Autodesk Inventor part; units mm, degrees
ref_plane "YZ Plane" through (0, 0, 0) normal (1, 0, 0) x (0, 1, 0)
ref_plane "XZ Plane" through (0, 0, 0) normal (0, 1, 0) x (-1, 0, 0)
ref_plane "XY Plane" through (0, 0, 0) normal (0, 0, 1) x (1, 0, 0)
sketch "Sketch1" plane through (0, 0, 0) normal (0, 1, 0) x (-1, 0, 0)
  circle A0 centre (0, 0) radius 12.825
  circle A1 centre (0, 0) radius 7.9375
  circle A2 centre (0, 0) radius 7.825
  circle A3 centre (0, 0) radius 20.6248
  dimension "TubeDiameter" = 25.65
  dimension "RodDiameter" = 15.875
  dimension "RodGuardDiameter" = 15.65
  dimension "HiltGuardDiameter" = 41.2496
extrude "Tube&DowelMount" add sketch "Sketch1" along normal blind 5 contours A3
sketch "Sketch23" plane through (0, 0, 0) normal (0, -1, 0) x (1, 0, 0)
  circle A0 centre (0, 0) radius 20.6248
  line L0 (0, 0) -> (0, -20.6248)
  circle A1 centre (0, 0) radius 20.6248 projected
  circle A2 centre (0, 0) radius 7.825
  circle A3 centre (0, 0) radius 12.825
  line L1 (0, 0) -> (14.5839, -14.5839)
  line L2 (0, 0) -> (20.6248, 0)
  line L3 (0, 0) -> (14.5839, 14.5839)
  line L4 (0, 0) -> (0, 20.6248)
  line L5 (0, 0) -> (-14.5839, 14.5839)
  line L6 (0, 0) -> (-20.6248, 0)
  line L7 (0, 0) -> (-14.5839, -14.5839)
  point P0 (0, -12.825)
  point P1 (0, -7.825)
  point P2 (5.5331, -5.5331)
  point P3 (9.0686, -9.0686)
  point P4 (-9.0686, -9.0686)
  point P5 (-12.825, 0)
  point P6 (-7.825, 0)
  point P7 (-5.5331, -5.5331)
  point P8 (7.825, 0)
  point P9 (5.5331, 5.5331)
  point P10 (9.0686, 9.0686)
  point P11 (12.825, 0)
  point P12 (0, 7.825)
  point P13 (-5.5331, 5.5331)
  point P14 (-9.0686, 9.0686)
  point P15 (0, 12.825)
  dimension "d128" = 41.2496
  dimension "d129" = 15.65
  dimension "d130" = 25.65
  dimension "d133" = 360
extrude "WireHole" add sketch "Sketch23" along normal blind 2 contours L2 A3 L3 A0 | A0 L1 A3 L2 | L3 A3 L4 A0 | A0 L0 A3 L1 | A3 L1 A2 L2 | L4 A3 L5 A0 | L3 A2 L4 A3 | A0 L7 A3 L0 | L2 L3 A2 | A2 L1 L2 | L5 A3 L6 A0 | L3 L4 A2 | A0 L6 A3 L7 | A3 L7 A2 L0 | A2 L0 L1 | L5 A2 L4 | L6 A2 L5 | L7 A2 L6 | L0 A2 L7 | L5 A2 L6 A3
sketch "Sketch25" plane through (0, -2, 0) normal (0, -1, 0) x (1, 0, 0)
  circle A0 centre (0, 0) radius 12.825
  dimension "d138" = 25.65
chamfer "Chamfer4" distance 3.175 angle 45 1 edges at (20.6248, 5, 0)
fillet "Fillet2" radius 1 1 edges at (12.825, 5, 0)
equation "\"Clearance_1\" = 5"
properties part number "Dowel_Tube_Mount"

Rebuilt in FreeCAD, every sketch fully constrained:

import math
import FreeCAD as App
import Part
import Sketcher

V = App.Vector
Q = App.Units.Quantity


def edges_at(feature, points):
    """Names of the edges that pass closest to the given points."""
    edges = feature.Shape.Edges
    near = lambda p: min(range(len(edges)), key=lambda i: edges[i].distToShape(Part.Vertex(*p))[0])
    return sorted({f"Edge{near(p) + 1}" for p in points})

doc = App.newDocument("Part")
body = doc.addObject("PartDesign::Body", "Body")

# Sketch on XZ plane
sketch1 = body.newObject("Sketcher::SketchObject", "Sketch")
sketch1.AttachmentSupport = (doc.getObject("XZ_Plane"), [""])
sketch1.MapMode = "FlatFace"
sketch1.addGeometry(Part.Circle(V(0, 0, 0), V(0, 0, 1), 21), False)
sketch1.addGeometry(Part.Circle(V(0, 0, 0), V(0, 0, 1), 13), False)
sketch1.addConstraint(Sketcher.Constraint("Coincident", 0, 3, -1, 1))
sketch1.addConstraint(Sketcher.Constraint("Coincident", 1, 3, -1, 1))
sketch1.addConstraint(Sketcher.Constraint("Diameter", 1, Q("25.65 mm")))
sketch1.addConstraint(Sketcher.Constraint("Diameter", 0, Q("41.2496 mm")))
pad1 = body.newObject("PartDesign::Pad", "Pad")
pad1.Profile = sketch1
pad1.Length = 5
pad1.Reversed = True

# Sketch on XZ plane
sketch2 = body.newObject("Sketcher::SketchObject", "Sketch001")
sketch2.AttachmentSupport = (doc.getObject("XZ_Plane"), [""])
sketch2.MapMode = "FlatFace"
sketch2.addGeometry(Part.Circle(V(0, 0, 0), V(0, 0, 1), 20.6), False)
sketch2.addGeometry(Part.ArcOfCircle(Part.Circle(V(0, 0, 0), V(0, 0, 1), 12.8), math.radians(0), math.radians(45)), False)
sketch2.addGeometry(Part.LineSegment(V(12.8, 0, 0), V(7.8, 0, 0)), False)
sketch2.addGeometry(Part.ArcOfCircle(Part.Circle(V(0, 0, 0), V(0, 0, 1), 7.8), math.radians(0), math.radians(45)), False)
sketch2.addGeometry(Part.LineSegment(V(5.5, 5.5, 0), V(9.1, 9.1, 0)), False)
sketch2.addGeometry(Part.ArcOfCircle(Part.Circle(V(0, 0, 0), V(0, 0, 1), 12.8), math.radians(-90), math.radians(-45)), False)
sketch2.addGeometry(Part.LineSegment(V(0, -12.8, 0), V(0, -7.8, 0)), False)
sketch2.addGeometry(Part.ArcOfCircle(Part.Circle(V(0, 0, 0), V(0, 0, 1), 7.8), math.radians(-90), math.radians(-45)), False)
sketch2.addGeometry(Part.LineSegment(V(5.5, -5.5, 0), V(9.1, -9.1, 0)), False)
sketch2.addGeometry(Part.LineSegment(V(0, 12.8, 0), V(0, 7.8, 0)), False)
sketch2.addGeometry(Part.ArcOfCircle(Part.Circle(V(0, 0, 0), V(0, 0, 1), 7.8), math.radians(90), math.radians(135)), False)
sketch2.addGeometry(Part.LineSegment(V(-5.5, 5.5, 0), V(-9.1, 9.1, 0)), False)
sketch2.addGeometry(Part.ArcOfCircle(Part.Circle(V(0, 0, 0), V(0, 0, 1), 12.8), math.radians(90), math.radians(135)), False)
sketch2.addGeometry(Part.ArcOfCircle(Part.Circle(V(0, 0, 0), V(0, 0, 1), 12.8), math.radians(180), math.radians(225)), False)
sketch2.addGeometry(Part.LineSegment(V(-12.8, 0, 0), V(-7.8, 0, 0)), False)
sketch2.addGeometry(Part.ArcOfCircle(Part.Circle(V(0, 0, 0), V(0, 0, 1), 7.8), math.radians(180), math.radians(225)), False)
sketch2.addGeometry(Part.LineSegment(V(-5.5, -5.5, 0), V(-9.1, -9.1, 0)), False)
sketch2.addConstraint(Sketcher.Constraint("Coincident", 1, 1, 2, 1))
sketch2.addConstraint(Sketcher.Constraint("Coincident", 2, 2, 3, 1))
sketch2.addConstraint(Sketcher.Constraint("Coincident", 3, 2, 4, 1))
sketch2.addConstraint(Sketcher.Constraint("Coincident", 4, 2, 1, 2))
sketch2.addConstraint(Sketcher.Constraint("Coincident", 5, 1, 6, 1))
sketch2.addConstraint(Sketcher.Constraint("Coincident", 6, 2, 7, 1))
sketch2.addConstraint(Sketcher.Constraint("Coincident", 7, 2, 8, 1))
sketch2.addConstraint(Sketcher.Constraint("Coincident", 8, 2, 5, 2))
sketch2.addConstraint(Sketcher.Constraint("Coincident", 9, 2, 10, 1))
sketch2.addConstraint(Sketcher.Constraint("Coincident", 10, 2, 11, 1))
sketch2.addConstraint(Sketcher.Constraint("Coincident", 11, 2, 12, 2))
sketch2.addConstraint(Sketcher.Constraint("Coincident", 12, 1, 9, 1))
sketch2.addConstraint(Sketcher.Constraint("Coincident", 13, 1, 14, 1))
sketch2.addConstraint(Sketcher.Constraint("Coincident", 14, 2, 15, 1))
sketch2.addConstraint(Sketcher.Constraint("Coincident", 15, 2, 16, 1))
sketch2.addConstraint(Sketcher.Constraint("Coincident", 16, 2, 13, 2))
sketch2.addConstraint(Sketcher.Constraint("Horizontal", 2))
sketch2.addConstraint(Sketcher.Constraint("Vertical", 6))
sketch2.addConstraint(Sketcher.Constraint("Vertical", 9))
sketch2.addConstraint(Sketcher.Constraint("Horizontal", 14))
sketch2.addConstraint(Sketcher.Constraint("Coincident", 0, 3, -1, 1))
sketch2.addConstraint(Sketcher.Constraint("Coincident", 1, 3, -1, 1))
sketch2.addConstraint(Sketcher.Constraint("Coincident", 3, 3, -1, 1))
sketch2.addConstraint(Sketcher.Constraint("Coincident", 5, 3, -1, 1))
sketch2.addConstraint(Sketcher.Constraint("Coincident", 7, 3, -1, 1))
sketch2.addConstraint(Sketcher.Constraint("Coincident", 10, 3, -1, 1))
sketch2.addConstraint(Sketcher.Constraint("Coincident", 12, 3, -1, 1))
sketch2.addConstraint(Sketcher.Constraint("Coincident", 13, 3, -1, 1))
sketch2.addConstraint(Sketcher.Constraint("Coincident", 15, 3, -1, 1))
sketch2.addConstraint(Sketcher.Constraint("Equal", 1, 5))
sketch2.addConstraint(Sketcher.Constraint("Equal", 3, 7))
sketch2.addConstraint(Sketcher.Constraint("Equal", 7, 10))
sketch2.addConstraint(Sketcher.Constraint("Equal", 5, 12))
sketch2.addConstraint(Sketcher.Constraint("Equal", 12, 13))
sketch2.addConstraint(Sketcher.Constraint("Equal", 10, 15))
sketch2.addConstraint(Sketcher.Constraint("PointOnObject", 1, 1, -1))
sketch2.addConstraint(Sketcher.Constraint("PointOnObject", 5, 1, -2))
sketch2.addConstraint(Sketcher.Constraint("PointOnObject", 9, 2, -2))
sketch2.addConstraint(Sketcher.Constraint("PointOnObject", 13, 1, -1))
sketch2.addConstraint(Sketcher.Constraint("Perpendicular", 4, 8))
sketch2.addConstraint(Sketcher.Constraint("Parallel", 8, 11))
sketch2.addConstraint(Sketcher.Constraint("Perpendicular", 11, 16))
sketch2.addConstraint(Sketcher.Constraint("Horizontal", 3, 2, 10, 2))
sketch2.addConstraint(Sketcher.Constraint("Horizontal", 4, 2, 11, 2))
sketch2.addConstraint(Sketcher.Constraint("Horizontal", 7, 2, 15, 2))
sketch2.addConstraint(Sketcher.Constraint("Vertical", 3, 2, 7, 2))
sketch2.addConstraint(Sketcher.Constraint("Radius", 1, Q("12.825 mm")))
sketch2.addConstraint(Sketcher.Constraint("Radius", 3, Q("7.825 mm")))
sketch2.addConstraint(Sketcher.Constraint("Diameter", 0, Q("41.2496 mm")))
sketch2.addConstraint(Sketcher.Constraint("DistanceX", -1, 1, 3, 2, Q("5.533 mm")))
pad2 = body.newObject("PartDesign::Pad", "Pad001")
pad2.Profile = sketch2
pad2.Length = 2
doc.recompute()

chamfer = body.newObject("PartDesign::Chamfer", "Chamfer")
chamfer.Base = (pad2, edges_at(pad2, [(20.625, 5, 0)]))
chamfer.Size = 3.175
doc.recompute()

fillet = body.newObject("PartDesign::Fillet", "Fillet")
fillet.Base = (chamfer, edges_at(chamfer, [(12.825, 5, 0)]))
fillet.Radius = 1

doc.recompute()
